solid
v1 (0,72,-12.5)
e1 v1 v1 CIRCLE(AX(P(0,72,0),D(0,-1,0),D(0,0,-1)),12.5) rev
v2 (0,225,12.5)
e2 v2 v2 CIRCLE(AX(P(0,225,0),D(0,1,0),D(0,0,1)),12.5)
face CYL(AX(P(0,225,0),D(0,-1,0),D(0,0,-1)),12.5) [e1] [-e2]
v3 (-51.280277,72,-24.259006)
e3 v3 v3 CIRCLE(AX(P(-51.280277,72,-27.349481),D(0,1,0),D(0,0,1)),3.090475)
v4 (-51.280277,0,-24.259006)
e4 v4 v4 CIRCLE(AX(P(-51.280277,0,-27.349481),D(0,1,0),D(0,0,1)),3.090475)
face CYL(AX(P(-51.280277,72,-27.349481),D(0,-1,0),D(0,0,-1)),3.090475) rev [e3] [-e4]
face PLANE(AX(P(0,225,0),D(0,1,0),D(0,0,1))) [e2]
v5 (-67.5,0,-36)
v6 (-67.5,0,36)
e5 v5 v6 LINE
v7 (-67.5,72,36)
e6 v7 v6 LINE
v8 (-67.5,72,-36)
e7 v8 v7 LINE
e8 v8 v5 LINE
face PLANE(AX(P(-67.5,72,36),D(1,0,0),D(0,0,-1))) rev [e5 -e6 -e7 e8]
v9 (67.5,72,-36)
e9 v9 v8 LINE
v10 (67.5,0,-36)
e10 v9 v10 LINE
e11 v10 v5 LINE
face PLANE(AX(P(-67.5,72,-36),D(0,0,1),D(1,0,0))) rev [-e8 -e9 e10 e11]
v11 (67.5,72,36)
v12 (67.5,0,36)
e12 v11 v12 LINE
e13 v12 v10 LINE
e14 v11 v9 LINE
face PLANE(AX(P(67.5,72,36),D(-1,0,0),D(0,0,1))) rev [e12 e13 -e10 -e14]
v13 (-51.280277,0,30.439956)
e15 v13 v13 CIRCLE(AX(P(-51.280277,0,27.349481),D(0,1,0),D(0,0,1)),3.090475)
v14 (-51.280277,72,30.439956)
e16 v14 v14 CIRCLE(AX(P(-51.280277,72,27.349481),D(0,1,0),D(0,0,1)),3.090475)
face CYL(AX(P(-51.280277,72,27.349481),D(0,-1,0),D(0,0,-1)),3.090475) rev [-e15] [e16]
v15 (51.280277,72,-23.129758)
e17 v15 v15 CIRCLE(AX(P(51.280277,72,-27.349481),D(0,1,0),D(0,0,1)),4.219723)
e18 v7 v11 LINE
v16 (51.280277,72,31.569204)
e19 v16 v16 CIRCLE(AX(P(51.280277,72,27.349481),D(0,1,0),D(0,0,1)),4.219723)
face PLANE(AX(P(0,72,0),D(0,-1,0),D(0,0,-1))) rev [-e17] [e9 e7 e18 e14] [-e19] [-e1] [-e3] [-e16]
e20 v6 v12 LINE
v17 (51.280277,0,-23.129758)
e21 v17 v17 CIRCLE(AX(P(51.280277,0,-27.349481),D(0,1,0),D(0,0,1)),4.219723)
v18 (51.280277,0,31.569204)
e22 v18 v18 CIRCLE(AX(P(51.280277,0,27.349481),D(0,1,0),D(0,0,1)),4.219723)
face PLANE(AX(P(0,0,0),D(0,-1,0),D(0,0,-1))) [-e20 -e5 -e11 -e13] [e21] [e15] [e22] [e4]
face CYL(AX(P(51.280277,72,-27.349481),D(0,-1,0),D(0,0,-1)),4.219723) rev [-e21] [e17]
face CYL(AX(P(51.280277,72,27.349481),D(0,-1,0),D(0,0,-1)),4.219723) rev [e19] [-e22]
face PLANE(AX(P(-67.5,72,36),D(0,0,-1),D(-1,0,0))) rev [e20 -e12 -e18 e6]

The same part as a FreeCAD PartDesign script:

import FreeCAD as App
import Part
import Sketcher
from FreeCAD import Vector


def add_polygon(sketch, points):
    """Adds a closed chain of lines whose ends are joined by coincident constraints."""
    first, n = sketch.GeometryCount, len(points)
    for a, b in zip(points, points[1:] + points[:1]):
        sketch.addGeometry(Part.LineSegment(App.Vector(*a, 0), App.Vector(*b, 0)), False)
    for i in range(n):
        sketch.addConstraint(Sketcher.Constraint("Coincident", first + i, 2, first + (i + 1) % n, 1))

doc = App.newDocument("Part")
body = doc.addObject("PartDesign::Body", "Body")

# Sketch on XZ plane
sketch1 = doc.addObject("Sketcher::SketchObject", "Sketch")
body.addObject(sketch1)
sketch1.AttachmentSupport = (doc.XZ_Plane, [""])
sketch1.MapMode = "FlatFace"
add_polygon(sketch1, [(-67.5, -36), (-67.5, 36), (67.5, 36), (67.5, -36)])  # lines 0-3
sketch1.addGeometry(Part.Circle(Vector(-51.280277, 27.349481, 0), Vector(0, 0, 1), 3.090475), False)  # 4
sketch1.addGeometry(Part.Circle(Vector(51.280277, 27.349481, 0), Vector(0, 0, 1), 4.219723), False)  # 5
sketch1.addGeometry(Part.Circle(Vector(-51.280277, -27.349481, 0), Vector(0, 0, 1), 3.090475), False)  # 6
sketch1.addGeometry(Part.Circle(Vector(51.280277, -27.349481, 0), Vector(0, 0, 1), 4.219723), False)  # 7
sketch1.addConstraint(Sketcher.Constraint("Vertical", 0))
sketch1.addConstraint(Sketcher.Constraint("Horizontal", 1))
sketch1.addConstraint(Sketcher.Constraint("Vertical", 2))
sketch1.addConstraint(Sketcher.Constraint("Horizontal", 3))
sketch1.addConstraint(Sketcher.Constraint("Equal", 4, 6))
sketch1.addConstraint(Sketcher.Constraint("Equal", 5, 7))
sketch1.addConstraint(Sketcher.Constraint("Symmetric", 5, 3, 6, 3, -1, 1))
sketch1.addConstraint(Sketcher.Constraint("Symmetric", 4, 3, 7, 3, -1, 1))
sketch1.addConstraint(Sketcher.Constraint("Symmetric", 0, 2, 2, 2, -1, 1))
sketch1.addConstraint(Sketcher.Constraint("Symmetric", 4, 3, 5, 3, -2))
sketch1.addConstraint(Sketcher.Constraint("DistanceX", 1, 1, 1, 2, 135.0))
sketch1.addConstraint(Sketcher.Constraint("DistanceY", 0, 1, 0, 2, 72.0))
sketch1.addConstraint(Sketcher.Constraint("Diameter", 4, 6.180951))
sketch1.addConstraint(Sketcher.Constraint("Diameter", 5, 8.439446))
sketch1.addConstraint(Sketcher.Constraint("DistanceY", -1, 1, 4, 3, 27.349481))
sketch1.addConstraint(Sketcher.Constraint("DistanceX", 4, 3, -1, 1, 51.280277))
pad1 = doc.addObject("PartDesign::Pad", "Pad")
body.addObject(pad1)
pad1.Profile = sketch1
pad1.Length = 72
pad1.Reversed = True

# Sketch on XZ plane
sketch2 = doc.addObject("Sketcher::SketchObject", "Sketch001")
body.addObject(sketch2)
sketch2.AttachmentSupport = (doc.XZ_Plane, [""])
sketch2.MapMode = "FlatFace"
sketch2.addGeometry(Part.Circle(Vector(0, 0, 0), Vector(0, 0, 1), 12.5), False)
sketch2.addConstraint(Sketcher.Constraint("Coincident", 0, 3, -1, 1))
sketch2.addConstraint(Sketcher.Constraint("Diameter", 0, 25.0))
pad2 = doc.addObject("PartDesign::Pad", "Pad001")
body.addObject(pad2)
pad2.Profile = sketch2
pad2.Length = 225
pad2.Reversed = True

doc.recompute()
